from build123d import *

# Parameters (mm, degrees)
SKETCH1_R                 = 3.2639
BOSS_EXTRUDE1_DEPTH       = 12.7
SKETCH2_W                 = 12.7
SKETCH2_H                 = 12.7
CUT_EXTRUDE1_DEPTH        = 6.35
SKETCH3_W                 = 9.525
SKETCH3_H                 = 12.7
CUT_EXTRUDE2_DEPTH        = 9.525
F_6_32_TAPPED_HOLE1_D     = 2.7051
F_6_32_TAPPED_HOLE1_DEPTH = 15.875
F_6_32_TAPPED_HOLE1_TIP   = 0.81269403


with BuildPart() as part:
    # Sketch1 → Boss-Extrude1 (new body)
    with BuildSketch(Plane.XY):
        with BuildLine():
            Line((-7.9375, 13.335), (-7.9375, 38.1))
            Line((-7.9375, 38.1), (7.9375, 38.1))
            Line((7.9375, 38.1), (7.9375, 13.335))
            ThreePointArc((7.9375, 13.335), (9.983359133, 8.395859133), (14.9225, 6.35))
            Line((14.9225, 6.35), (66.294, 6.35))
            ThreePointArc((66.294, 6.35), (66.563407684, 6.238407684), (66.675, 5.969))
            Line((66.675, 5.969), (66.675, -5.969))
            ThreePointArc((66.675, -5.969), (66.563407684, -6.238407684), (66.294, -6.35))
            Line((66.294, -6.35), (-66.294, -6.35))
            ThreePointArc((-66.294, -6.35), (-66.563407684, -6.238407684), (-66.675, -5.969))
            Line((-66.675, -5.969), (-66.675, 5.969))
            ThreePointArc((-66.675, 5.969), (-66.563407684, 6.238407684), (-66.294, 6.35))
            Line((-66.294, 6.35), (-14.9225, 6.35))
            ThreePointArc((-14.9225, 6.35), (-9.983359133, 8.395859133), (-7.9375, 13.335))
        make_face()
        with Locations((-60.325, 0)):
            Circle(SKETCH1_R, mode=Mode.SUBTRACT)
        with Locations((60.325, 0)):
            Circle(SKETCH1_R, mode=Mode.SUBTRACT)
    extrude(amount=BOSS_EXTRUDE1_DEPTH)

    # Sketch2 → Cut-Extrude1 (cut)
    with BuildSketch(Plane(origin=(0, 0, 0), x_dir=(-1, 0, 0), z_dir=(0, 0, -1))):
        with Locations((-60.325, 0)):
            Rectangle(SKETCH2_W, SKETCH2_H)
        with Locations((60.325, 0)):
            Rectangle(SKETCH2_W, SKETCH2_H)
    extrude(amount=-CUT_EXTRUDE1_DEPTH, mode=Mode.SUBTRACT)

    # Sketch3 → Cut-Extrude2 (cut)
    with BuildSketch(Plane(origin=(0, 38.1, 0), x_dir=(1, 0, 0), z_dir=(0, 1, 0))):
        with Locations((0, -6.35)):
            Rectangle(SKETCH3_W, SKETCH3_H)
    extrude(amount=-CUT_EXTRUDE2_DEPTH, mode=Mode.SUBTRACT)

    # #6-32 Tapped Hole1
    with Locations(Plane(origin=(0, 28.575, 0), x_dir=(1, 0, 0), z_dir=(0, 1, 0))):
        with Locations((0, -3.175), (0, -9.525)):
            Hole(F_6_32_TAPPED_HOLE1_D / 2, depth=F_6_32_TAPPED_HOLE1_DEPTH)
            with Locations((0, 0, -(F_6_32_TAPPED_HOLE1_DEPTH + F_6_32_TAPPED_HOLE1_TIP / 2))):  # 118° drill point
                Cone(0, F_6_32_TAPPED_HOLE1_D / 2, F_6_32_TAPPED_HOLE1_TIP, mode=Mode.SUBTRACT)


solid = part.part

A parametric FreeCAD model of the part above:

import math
import FreeCAD as App
import Part
import Sketcher
Q = App.Units.Quantity


def add_polygon(sketch, points):
    """Adds a closed chain of lines whose ends are joined by coincident constraints."""
    first, n = sketch.GeometryCount, len(points)
    for a, b in zip(points, points[1:] + points[:1]):
        sketch.addGeometry(Part.LineSegment(App.Vector(*a, 0), App.Vector(*b, 0)), False)
    for i in range(n):
        sketch.addConstraint(Sketcher.Constraint("Coincident", first + i, 2, first + (i + 1) % n, 1))

doc = App.newDocument("Part")
body = doc.addObject("PartDesign::Body", "Body")

# Sketch on XY plane
sketch1 = doc.addObject("Sketcher::SketchObject", "Sketch")
body.addObject(sketch1)
sketch1.AttachmentSupport = (doc.XY_Plane, [""])
sketch1.MapMode = "FlatFace"
sketch1.addGeometry(Part.LineSegment(App.Vector(-7.94, 38.1, 0), App.Vector(-7.94, 13.34, 0)), False)
sketch1.addGeometry(Part.ArcOfCircle(Part.Circle(App.Vector(-14.92, 13.33, 0), App.Vector(0, 0, 1), 6.98), math.radians(-90), math.radians(0)), False)
sketch1.addGeometry(Part.LineSegment(App.Vector(-14.92, 6.35, 0), App.Vector(-66.29, 6.35, 0)), False)
sketch1.addGeometry(Part.ArcOfCircle(Part.Circle(App.Vector(-66.29, 5.97, 0), App.Vector(0, 0, 1), 0.38), math.radians(90), math.radians(180)), False)
sketch1.addGeometry(Part.LineSegment(App.Vector(-66.67, 5.97, 0), App.Vector(-66.67, -5.97, 0)), False)
sketch1.addGeometry(Part.ArcOfCircle(Part.Circle(App.Vector(-66.29, -5.97, 0), App.Vector(0, 0, 1), 0.38), math.radians(180), math.radians(270)), False)
sketch1.addGeometry(Part.LineSegment(App.Vector(-66.29, -6.35, 0), App.Vector(66.29, -6.35, 0)), False)
sketch1.addGeometry(Part.ArcOfCircle(Part.Circle(App.Vector(66.29, -5.97, 0), App.Vector(0, 0, 1), 0.38), math.radians(-90), math.radians(0)), False)
sketch1.addGeometry(Part.LineSegment(App.Vector(66.67, -5.97, 0), App.Vector(66.67, 5.97, 0)), False)
sketch1.addGeometry(Part.ArcOfCircle(Part.Circle(App.Vector(66.29, 5.97, 0), App.Vector(0, 0, 1), 0.38), math.radians(0), math.radians(90)), False)
sketch1.addGeometry(Part.LineSegment(App.Vector(66.29, 6.35, 0), App.Vector(14.92, 6.35, 0)), False)
sketch1.addGeometry(Part.ArcOfCircle(Part.Circle(App.Vector(14.92, 13.33, 0), App.Vector(0, 0, 1), 6.98), math.radians(180), math.radians(270)), False)
sketch1.addGeometry(Part.LineSegment(App.Vector(7.94, 13.34, 0), App.Vector(7.94, 38.1, 0)), False)
sketch1.addGeometry(Part.LineSegment(App.Vector(7.94, 38.1, 0), App.Vector(-7.94, 38.1, 0)), False)
sketch1.addGeometry(Part.Circle(App.Vector(60.33, 0, 0), App.Vector(0, 0, 1), 3.26), False)
sketch1.addGeometry(Part.Circle(App.Vector(-60.33, 0, 0), App.Vector(0, 0, 1), 3.26), False)
sketch1.addConstraint(Sketcher.Constraint("Tangent", 0, 2, 1, 2))
sketch1.addConstraint(Sketcher.Constraint("Tangent", 1, 1, 2, 1))
sketch1.addConstraint(Sketcher.Constraint("Tangent", 2, 2, 3, 1))
sketch1.addConstraint(Sketcher.Constraint("Tangent", 3, 2, 4, 1))
sketch1.addConstraint(Sketcher.Constraint("Tangent", 4, 2, 5, 1))
sketch1.addConstraint(Sketcher.Constraint("Tangent", 5, 2, 6, 1))
sketch1.addConstraint(Sketcher.Constraint("Tangent", 6, 2, 7, 1))
sketch1.addConstraint(Sketcher.Constraint("Tangent", 7, 2, 8, 1))
sketch1.addConstraint(Sketcher.Constraint("Tangent", 8, 2, 9, 1))
sketch1.addConstraint(Sketcher.Constraint("Tangent", 9, 2, 10, 1))
sketch1.addConstraint(Sketcher.Constraint("Tangent", 10, 2, 11, 2))
sketch1.addConstraint(Sketcher.Constraint("Tangent", 11, 1, 12, 1))
sketch1.addConstraint(Sketcher.Constraint("Coincident", 12, 2, 13, 1))
sketch1.addConstraint(Sketcher.Constraint("Coincident", 13, 2, 0, 1))
sketch1.addConstraint(Sketcher.Constraint("Vertical", 0))
sketch1.addConstraint(Sketcher.Constraint("Horizontal", 2))
sketch1.addConstraint(Sketcher.Constraint("Vertical", 4))
sketch1.addConstraint(Sketcher.Constraint("Horizontal", 6))
sketch1.addConstraint(Sketcher.Constraint("Vertical", 8))
sketch1.addConstraint(Sketcher.Constraint("Horizontal", 10))
sketch1.addConstraint(Sketcher.Constraint("Vertical", 12))
sketch1.addConstraint(Sketcher.Constraint("Horizontal", 13))
sketch1.addConstraint(Sketcher.Constraint("Equal", 3, 5))
sketch1.addConstraint(Sketcher.Constraint("Equal", 5, 7))
sketch1.addConstraint(Sketcher.Constraint("Equal", 7, 9))
sketch1.addConstraint(Sketcher.Constraint("Equal", 1, 11))
sketch1.addConstraint(Sketcher.Constraint("Equal", 14, 15))
sketch1.addConstraint(Sketcher.Constraint("Symmetric", 3, 3, 7, 3, -1, 1))
sketch1.addConstraint(Sketcher.Constraint("Symmetric", 14, 3, 15, 3, -1, 1))
sketch1.addConstraint(Sketcher.Constraint("Symmetric", 1, 3, 11, 3, -2))
sketch1.addConstraint(Sketcher.Constraint("PointOnObject", 14, 3, -1))
sketch1.addConstraint(Sketcher.Constraint("Diameter", 14, Q("0.257 in")))
sketch1.addConstraint(Sketcher.Constraint("Radius", 1, Q("0.275 in")))
sketch1.addConstraint(Sketcher.Constraint("Radius", 3, Q("0.015 in")))
sketch1.addConstraint(Sketcher.Constraint("DistanceX", 6, 1, 6, 2, Q("5.22 in")))
sketch1.addConstraint(Sketcher.Constraint("DistanceY", 4, 2, 4, 1, Q("0.47 in")))
sketch1.addConstraint(Sketcher.Constraint("DistanceY", -1, 1, 12, 2, Q("1.5 in")))
sketch1.addConstraint(Sketcher.Constraint("DistanceX", 0, 2, 11, 3, Q("0.9 in")))
sketch1.addConstraint(Sketcher.Constraint("DistanceX", 15, 3, 14, 3, Q("4.75 in")))
pad1 = doc.addObject("PartDesign::Pad", "Pad")
body.addObject(pad1)
pad1.Profile = sketch1
pad1.Length = Q("0.5 in")

# Sketch on XY plane
sketch2 = doc.addObject("Sketcher::SketchObject", "Sketch001")
body.addObject(sketch2)
sketch2.AttachmentSupport = (doc.XY_Plane, [""])
sketch2.MapMode = "FlatFace"
add_polygon(sketch2, [(67, 6), (67, -6), (54, -6), (54, 6)])  # lines 0-3
add_polygon(sketch2, [(-54, 6), (-54, -6), (-67, -6), (-67, 6)])  # lines 4-7
sketch2.addConstraint(Sketcher.Constraint("Vertical", 0))
sketch2.addConstraint(Sketcher.Constraint("Horizontal", 1))
sketch2.addConstraint(Sketcher.Constraint("Vertical", 2))
sketch2.addConstraint(Sketcher.Constraint("Horizontal", 3))
sketch2.addConstraint(Sketcher.Constraint("Vertical", 4))
sketch2.addConstraint(Sketcher.Constraint("Horizontal", 5))
sketch2.addConstraint(Sketcher.Constraint("Vertical", 6))
sketch2.addConstraint(Sketcher.Constraint("Horizontal", 7))
sketch2.addConstraint(Sketcher.Constraint("Symmetric", 2, 2, 4, 2, -1, 1))
sketch2.addConstraint(Sketcher.Constraint("Symmetric", 0, 2, 6, 2, -1, 1))
sketch2.addConstraint(Sketcher.Constraint("Horizontal", 1, 2, 4, 2))
sketch2.addConstraint(Sketcher.Constraint("Equal", 7, 0))
sketch2.addConstraint(Sketcher.Constraint("DistanceX", 1, 2, 1, 1, Q("0.5 in")))
sketch2.addConstraint(Sketcher.Constraint("DistanceX", 4, 2, 1, 2, Q("4.25 in")))
pocket1 = doc.addObject("PartDesign::Pocket", "Pocket")
body.addObject(pocket1)
pocket1.Profile = sketch2
pocket1.Length = Q("0.25 in")
pocket1.Reversed = True

# Sketch on XZ plane
sketch3 = doc.addObject("Sketcher::SketchObject", "Sketch002")
body.addObject(sketch3)
sketch3.AttachmentSupport = (doc.XZ_Plane, [""])
sketch3.MapMode = "FlatFace"
sketch3.AttachmentOffset = App.Placement(App.Vector(0, 0, -1.5 * 25.4), App.Rotation())
add_polygon(sketch3, [(-5, 0), (-5, 13), (5, 13), (5, 0)])  # lines 0-3
sketch3.addConstraint(Sketcher.Constraint("Vertical", 0))
sketch3.addConstraint(Sketcher.Constraint("Horizontal", 1))
sketch3.addConstraint(Sketcher.Constraint("Vertical", 2))
sketch3.addConstraint(Sketcher.Constraint("Horizontal", 3))
sketch3.addConstraint(Sketcher.Constraint("Symmetric", 2, 2, 3, 2, -1, 1))
sketch3.addConstraint(Sketcher.Constraint("DistanceY", 0, 1, 0, 2, Q("0.5 in")))
sketch3.addConstraint(Sketcher.Constraint("DistanceX", 1, 1, 1, 2, Q("0.375 in")))
pocket2 = doc.addObject("PartDesign::Pocket", "Pocket001")
body.addObject(pocket2)
pocket2.Profile = sketch3
pocket2.Length = Q("0.375 in")
pocket2.Reversed = True

# Sketch on XZ plane
sketch4 = doc.addObject("Sketcher::SketchObject", "Sketch003")
body.addObject(sketch4)
sketch4.AttachmentSupport = (doc.XZ_Plane, [""])
sketch4.MapMode = "FlatFace"
sketch4.AttachmentOffset = App.Placement(App.Vector(0, 0, -1.125 * 25.4), App.Rotation())
sketch4.addGeometry(Part.Circle(App.Vector(0, 3.2, 0), App.Vector(0, 0, 1), 1.4), False)
sketch4.addGeometry(Part.Circle(App.Vector(0, 9.5, 0), App.Vector(0, 0, 1), 1.4), False)
sketch4.addConstraint(Sketcher.Constraint("Equal", 0, 1))
sketch4.addConstraint(Sketcher.Constraint("PointOnObject", 0, 3, -2))
sketch4.addConstraint(Sketcher.Constraint("PointOnObject", 1, 3, -2))
sketch4.addConstraint(Sketcher.Constraint("Diameter", 0, Q("0.1065 in")))
sketch4.addConstraint(Sketcher.Constraint("DistanceY", 0, 3, 1, 3, Q("0.25 in")))
sketch4.addConstraint(Sketcher.Constraint("DistanceY", -1, 1, 0, 3, Q("0.125 in")))
doc.recompute()
hole = doc.addObject("PartDesign::Hole", "Hole")
body.addObject(hole)
hole.Profile = sketch4
hole.ThreadType = "None"
hole.Diameter = Q("0.1065 in")
hole.DepthType = "Dimension"
hole.Depth = Q("0.625 in")
hole.DrillPoint = "Angled"
hole.DrillPointAngle = 118
hole.Reversed = True

doc.recompute()
